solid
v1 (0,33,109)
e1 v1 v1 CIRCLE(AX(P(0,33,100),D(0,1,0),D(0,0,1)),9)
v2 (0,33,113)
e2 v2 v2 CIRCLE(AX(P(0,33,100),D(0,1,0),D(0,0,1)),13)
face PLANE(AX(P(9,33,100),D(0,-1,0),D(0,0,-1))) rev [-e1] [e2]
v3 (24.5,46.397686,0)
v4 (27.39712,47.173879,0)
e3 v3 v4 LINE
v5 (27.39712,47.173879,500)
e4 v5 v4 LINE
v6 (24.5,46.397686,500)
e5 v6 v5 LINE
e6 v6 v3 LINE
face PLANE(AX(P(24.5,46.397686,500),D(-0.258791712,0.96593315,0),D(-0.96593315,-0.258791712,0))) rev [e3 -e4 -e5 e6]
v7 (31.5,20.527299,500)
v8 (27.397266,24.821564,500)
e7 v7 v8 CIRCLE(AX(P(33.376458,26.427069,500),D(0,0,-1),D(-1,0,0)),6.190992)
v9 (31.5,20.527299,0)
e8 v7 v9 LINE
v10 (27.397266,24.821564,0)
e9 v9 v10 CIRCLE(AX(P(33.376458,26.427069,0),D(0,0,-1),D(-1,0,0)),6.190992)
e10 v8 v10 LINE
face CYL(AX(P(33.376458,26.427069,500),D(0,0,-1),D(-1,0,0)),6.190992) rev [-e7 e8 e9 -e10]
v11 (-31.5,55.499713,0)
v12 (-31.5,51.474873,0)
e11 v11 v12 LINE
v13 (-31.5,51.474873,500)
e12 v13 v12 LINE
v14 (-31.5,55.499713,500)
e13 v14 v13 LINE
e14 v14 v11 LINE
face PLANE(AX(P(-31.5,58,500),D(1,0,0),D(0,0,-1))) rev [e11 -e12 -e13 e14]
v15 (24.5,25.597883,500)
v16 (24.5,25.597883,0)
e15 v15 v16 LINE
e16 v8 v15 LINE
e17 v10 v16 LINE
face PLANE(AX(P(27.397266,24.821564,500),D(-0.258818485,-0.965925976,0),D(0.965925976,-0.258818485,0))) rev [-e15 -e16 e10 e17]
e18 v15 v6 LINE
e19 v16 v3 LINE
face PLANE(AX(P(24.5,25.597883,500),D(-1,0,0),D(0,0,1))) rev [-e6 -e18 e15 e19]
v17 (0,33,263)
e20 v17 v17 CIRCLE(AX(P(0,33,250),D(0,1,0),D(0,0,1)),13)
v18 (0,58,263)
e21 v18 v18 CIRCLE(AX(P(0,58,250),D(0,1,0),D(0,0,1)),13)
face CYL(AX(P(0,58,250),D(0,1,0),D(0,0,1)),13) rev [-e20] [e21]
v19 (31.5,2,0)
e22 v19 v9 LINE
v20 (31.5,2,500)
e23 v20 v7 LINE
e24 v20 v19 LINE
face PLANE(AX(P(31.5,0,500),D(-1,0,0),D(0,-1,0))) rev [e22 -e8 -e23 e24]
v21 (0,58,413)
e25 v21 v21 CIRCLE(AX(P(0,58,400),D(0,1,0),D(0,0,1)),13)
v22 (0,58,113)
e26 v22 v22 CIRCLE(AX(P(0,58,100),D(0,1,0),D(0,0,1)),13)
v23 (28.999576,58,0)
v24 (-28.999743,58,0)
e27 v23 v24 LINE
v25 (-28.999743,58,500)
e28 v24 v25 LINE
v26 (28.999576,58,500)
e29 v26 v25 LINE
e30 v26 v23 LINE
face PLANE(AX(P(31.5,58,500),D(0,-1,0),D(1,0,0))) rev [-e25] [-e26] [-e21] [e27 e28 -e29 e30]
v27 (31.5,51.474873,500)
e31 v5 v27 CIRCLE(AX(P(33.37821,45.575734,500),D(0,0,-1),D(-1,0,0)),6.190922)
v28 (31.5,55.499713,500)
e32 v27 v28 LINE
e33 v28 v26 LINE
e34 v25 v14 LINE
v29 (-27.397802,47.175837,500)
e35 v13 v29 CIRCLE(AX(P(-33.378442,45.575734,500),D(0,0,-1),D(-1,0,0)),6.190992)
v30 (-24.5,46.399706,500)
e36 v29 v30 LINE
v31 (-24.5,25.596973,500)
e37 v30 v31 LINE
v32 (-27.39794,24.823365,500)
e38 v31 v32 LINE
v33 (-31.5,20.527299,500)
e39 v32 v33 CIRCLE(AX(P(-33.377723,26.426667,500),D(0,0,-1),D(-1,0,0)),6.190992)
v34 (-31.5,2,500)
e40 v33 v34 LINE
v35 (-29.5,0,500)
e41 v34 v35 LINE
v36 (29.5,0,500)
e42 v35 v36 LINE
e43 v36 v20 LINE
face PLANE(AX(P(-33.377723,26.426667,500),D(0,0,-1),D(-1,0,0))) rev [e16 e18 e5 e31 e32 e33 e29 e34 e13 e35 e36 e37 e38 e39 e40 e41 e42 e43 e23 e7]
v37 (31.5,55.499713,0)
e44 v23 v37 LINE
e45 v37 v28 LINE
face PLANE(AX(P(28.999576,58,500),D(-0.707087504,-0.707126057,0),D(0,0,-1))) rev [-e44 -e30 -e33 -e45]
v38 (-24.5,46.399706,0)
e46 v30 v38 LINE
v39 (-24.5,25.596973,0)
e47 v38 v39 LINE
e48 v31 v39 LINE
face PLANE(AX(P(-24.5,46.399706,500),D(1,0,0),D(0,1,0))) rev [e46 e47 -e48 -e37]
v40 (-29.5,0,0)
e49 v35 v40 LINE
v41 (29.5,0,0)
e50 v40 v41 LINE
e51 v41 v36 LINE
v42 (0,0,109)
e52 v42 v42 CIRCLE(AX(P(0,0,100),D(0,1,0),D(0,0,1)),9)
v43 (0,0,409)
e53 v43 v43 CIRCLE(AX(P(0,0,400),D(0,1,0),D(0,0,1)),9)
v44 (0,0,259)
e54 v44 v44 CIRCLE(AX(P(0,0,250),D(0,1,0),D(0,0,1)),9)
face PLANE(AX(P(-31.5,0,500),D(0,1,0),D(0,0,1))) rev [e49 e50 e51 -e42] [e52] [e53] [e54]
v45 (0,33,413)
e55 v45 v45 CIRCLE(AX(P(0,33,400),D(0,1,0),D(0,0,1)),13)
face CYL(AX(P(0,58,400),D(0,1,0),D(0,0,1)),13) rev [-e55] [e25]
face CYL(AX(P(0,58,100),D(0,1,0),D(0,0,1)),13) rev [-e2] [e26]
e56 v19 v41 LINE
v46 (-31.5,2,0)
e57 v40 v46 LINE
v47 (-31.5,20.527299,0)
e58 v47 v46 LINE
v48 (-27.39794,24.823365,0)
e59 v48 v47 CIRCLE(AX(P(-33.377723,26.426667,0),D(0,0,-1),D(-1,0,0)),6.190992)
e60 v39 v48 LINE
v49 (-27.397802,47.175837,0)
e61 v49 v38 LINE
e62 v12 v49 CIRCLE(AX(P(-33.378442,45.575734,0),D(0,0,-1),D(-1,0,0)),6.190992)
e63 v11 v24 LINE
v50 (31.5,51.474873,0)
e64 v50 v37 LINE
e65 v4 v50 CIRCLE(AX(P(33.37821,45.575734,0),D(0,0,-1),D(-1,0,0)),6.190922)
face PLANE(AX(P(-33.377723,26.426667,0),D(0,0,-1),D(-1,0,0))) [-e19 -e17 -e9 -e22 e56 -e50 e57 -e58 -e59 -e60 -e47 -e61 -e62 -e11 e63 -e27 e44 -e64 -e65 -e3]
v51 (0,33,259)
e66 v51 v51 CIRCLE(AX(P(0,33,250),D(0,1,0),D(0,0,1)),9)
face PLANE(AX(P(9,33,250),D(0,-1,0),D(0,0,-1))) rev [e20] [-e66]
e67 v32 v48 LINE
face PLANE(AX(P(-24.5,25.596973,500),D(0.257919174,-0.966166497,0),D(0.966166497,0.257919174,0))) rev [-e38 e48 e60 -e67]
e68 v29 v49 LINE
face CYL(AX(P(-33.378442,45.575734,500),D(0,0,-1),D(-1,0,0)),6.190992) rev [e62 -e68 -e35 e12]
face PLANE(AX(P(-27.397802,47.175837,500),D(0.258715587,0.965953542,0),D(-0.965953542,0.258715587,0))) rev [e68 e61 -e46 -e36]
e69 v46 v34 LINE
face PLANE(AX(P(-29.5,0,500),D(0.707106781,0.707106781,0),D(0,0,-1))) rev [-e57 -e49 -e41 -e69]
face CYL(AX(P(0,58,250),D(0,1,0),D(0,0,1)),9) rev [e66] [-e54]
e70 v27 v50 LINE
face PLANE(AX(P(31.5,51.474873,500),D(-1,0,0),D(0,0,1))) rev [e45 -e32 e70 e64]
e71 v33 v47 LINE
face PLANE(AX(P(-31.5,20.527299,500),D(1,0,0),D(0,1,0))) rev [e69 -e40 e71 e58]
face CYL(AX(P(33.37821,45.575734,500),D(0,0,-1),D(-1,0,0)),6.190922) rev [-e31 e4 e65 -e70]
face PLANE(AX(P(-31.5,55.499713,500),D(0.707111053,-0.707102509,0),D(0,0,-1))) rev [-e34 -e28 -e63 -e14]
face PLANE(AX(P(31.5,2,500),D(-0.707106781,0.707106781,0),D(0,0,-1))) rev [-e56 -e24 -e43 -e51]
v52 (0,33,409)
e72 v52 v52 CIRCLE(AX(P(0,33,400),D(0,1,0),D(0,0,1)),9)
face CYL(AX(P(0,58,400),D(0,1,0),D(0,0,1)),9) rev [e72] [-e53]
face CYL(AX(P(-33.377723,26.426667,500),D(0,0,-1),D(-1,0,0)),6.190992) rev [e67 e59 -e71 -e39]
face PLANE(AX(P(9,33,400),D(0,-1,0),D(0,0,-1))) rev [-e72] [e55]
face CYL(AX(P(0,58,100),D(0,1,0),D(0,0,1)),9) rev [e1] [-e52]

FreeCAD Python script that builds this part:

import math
import FreeCAD as App
import Part
import Sketcher
from FreeCAD import Vector


def edges_at(feature, points):
    """Names of the edges that pass closest to the given points."""
    edges = feature.Shape.Edges
    near = lambda p: min(range(len(edges)), key=lambda i: edges[i].distToShape(Part.Vertex(*p))[0])
    return sorted({f"Edge{near(p) + 1}" for p in points})

doc = App.newDocument("Part")
body = doc.addObject("PartDesign::Body", "Body")

# Sketch on XY plane
sketch1 = body.newObject("Sketcher::SketchObject", "Sketch")
sketch1.AttachmentSupport = (doc.getObject("XY_Plane"), [""])
sketch1.MapMode = "FlatFace"
sketch1.addGeometry([
    Part.LineSegment(Vector(-31.5, 20.5, 0), Vector(-31.5, 0, 0)),  # 0
    Part.LineSegment(Vector(-31.5, 0, 0), Vector(31.5, 0, 0)),  # 1
    Part.LineSegment(Vector(31.5, 0, 0), Vector(31.5, 20.5, 0)),  # 2
    Part.ArcOfCircle(Part.Circle(Vector(33.4, 26.4, 0), Vector(0, 0, 1), 6.2), math.radians(-165), math.radians(-108)),  # 3
    Part.LineSegment(Vector(27.4, 24.8, 0), Vector(24.5, 25.6, 0)),  # 4
    Part.LineSegment(Vector(24.5, 25.6, 0), Vector(24.5, 46.4, 0)),  # 5
    Part.LineSegment(Vector(24.5, 46.4, 0), Vector(27.4, 47.2, 0)),  # 6
    Part.ArcOfCircle(Part.Circle(Vector(33.4, 45.6, 0), Vector(0, 0, 1), 6.2), math.radians(108), math.radians(165)),  # 7
    Part.LineSegment(Vector(31.5, 51.5, 0), Vector(31.5, 58, 0)),  # 8
    Part.LineSegment(Vector(31.5, 58, 0), Vector(-31.5, 58, 0)),  # 9
    Part.LineSegment(Vector(-31.5, 58, 0), Vector(-31.5, 51.5, 0)),  # 10
    Part.ArcOfCircle(Part.Circle(Vector(-33.4, 45.6, 0), Vector(0, 0, 1), 6.2), math.radians(15), math.radians(72)),  # 11
    Part.LineSegment(Vector(-27.4, 47.2, 0), Vector(-24.5, 46.4, 0)),  # 12
    Part.LineSegment(Vector(-24.5, 46.4, 0), Vector(-24.5, 25.6, 0)),  # 13
    Part.LineSegment(Vector(-24.5, 25.6, 0), Vector(-27.4, 24.8, 0)),  # 14
    Part.ArcOfCircle(Part.Circle(Vector(-33.4, 26.4, 0), Vector(0, 0, 1), 6.2), math.radians(-72), math.radians(-15)),  # 15
], False)
sketch1.addConstraint([
    Sketcher.Constraint("Coincident", 0, 2, 1, 1),
    Sketcher.Constraint("Coincident", 1, 2, 2, 1),
    Sketcher.Constraint("Coincident", 2, 2, 3, 2),
    Sketcher.Constraint("Coincident", 3, 1, 4, 1),
    Sketcher.Constraint("Coincident", 4, 2, 5, 1),
    Sketcher.Constraint("Coincident", 5, 2, 6, 1),
    Sketcher.Constraint("Coincident", 6, 2, 7, 2),
    Sketcher.Constraint("Coincident", 7, 1, 8, 1),
    Sketcher.Constraint("Coincident", 8, 2, 9, 1),
    Sketcher.Constraint("Coincident", 9, 2, 10, 1),
    Sketcher.Constraint("Coincident", 10, 2, 11, 2),
    Sketcher.Constraint("Coincident", 11, 1, 12, 1),
    Sketcher.Constraint("Coincident", 12, 2, 13, 1),
    Sketcher.Constraint("Coincident", 13, 2, 14, 1),
    Sketcher.Constraint("Coincident", 14, 2, 15, 2),
    Sketcher.Constraint("Coincident", 15, 1, 0, 1),
    Sketcher.Constraint("Vertical", 0),
    Sketcher.Constraint("Horizontal", 1),
    Sketcher.Constraint("Vertical", 2),
    Sketcher.Constraint("Vertical", 5),
    Sketcher.Constraint("Vertical", 8),
    Sketcher.Constraint("Horizontal", 9),
    Sketcher.Constraint("Vertical", 10),
    Sketcher.Constraint("Vertical", 13),
    Sketcher.Constraint("Equal", 3, 11),
    Sketcher.Constraint("Equal", 11, 15),
    Sketcher.Constraint("Symmetric", 0, 2, 1, 2, -1, 1),
    Sketcher.Constraint("Symmetric", 7, 1, 10, 2, -2),
    Sketcher.Constraint("Horizontal", 7, 3, 11, 3),
    Sketcher.Constraint("Horizontal", 2, 2, 15, 1),
    Sketcher.Constraint("Vertical", 2, 2, 7, 1),
    Sketcher.Constraint("DistanceX", 1, 1, 1, 2, 63.0),
    Sketcher.Constraint("DistanceY", -1, 1, 8, 2, 58.0),
    Sketcher.Constraint("DistanceX", 4, 2, 2, 2, 7.0),
    Sketcher.Constraint("DistanceX", 10, 2, 12, 2, 7.0),
    Sketcher.Constraint("Radius", 3, 6.190992),
    Sketcher.Constraint("Radius", 7, 6.190922),
    Sketcher.Constraint("DistanceY", 0, 2, 0, 1, 20.527299),
    Sketcher.Constraint("DistanceX", 11, 3, 3, 3, 66.7549),
    Sketcher.Constraint("DistanceY", 14, 2, 15, 3, 1.603302),
    Sketcher.Constraint("Distance", 4, 2.99947),
    Sketcher.Constraint("Distance", 12, 2.999939),
    Sketcher.Constraint("Distance", 14, 2.99942),
    Sketcher.Constraint("DistanceY", 5, 1, 5, 2, 20.799803),
    Sketcher.Constraint("DistanceY", 8, 1, 8, 2, 6.525127),
    Sketcher.Constraint("DistanceY", 13, 2, 13, 1, 20.802733),
    Sketcher.Constraint("DistanceX", -1, 1, 3, 3, 33.376458),
    Sketcher.Constraint("DistanceX", -1, 1, 6, 2, 27.39712),
    Sketcher.Constraint("DistanceX", 14, 2, -1, 1, 27.39794),
    Sketcher.Constraint("DistanceX", 3, 1, 3, 3, 5.979192),
])
pad1 = body.newObject("PartDesign::Pad", "Pad")
pad1.Profile = sketch1
pad1.Length = 500

# Sketch on XZ plane
sketch2 = body.newObject("Sketcher::SketchObject", "Sketch001")
sketch2.AttachmentSupport = (doc.getObject("XZ_Plane"), [""])
sketch2.MapMode = "FlatFace"
sketch2.AttachmentOffset = App.Placement(Vector(0, 0, -58), App.Rotation())
sketch2.addGeometry([
    Part.Circle(Vector(0, 100, 0), Vector(0, 0, 1), 9),  # 0
    Part.Circle(Vector(0, 250, 0), Vector(0, 0, 1), 9),  # 1
    Part.Circle(Vector(0, 400, 0), Vector(0, 0, 1), 9),  # 2
    Part.Circle(Vector(0, 550, 0), Vector(0, 0, 1), 9),  # 3
    Part.Circle(Vector(0, 700, 0), Vector(0, 0, 1), 9),  # 4
    Part.Circle(Vector(0, 850, 0), Vector(0, 0, 1), 9),  # 5
    Part.Circle(Vector(0, 1000, 0), Vector(0, 0, 1), 9),  # 6
    Part.Circle(Vector(0, 1150, 0), Vector(0, 0, 1), 9),  # 7
    Part.Circle(Vector(0, 1300, 0), Vector(0, 0, 1), 9),  # 8
    Part.Circle(Vector(0, 1450, 0), Vector(0, 0, 1), 9),  # 9
    Part.Circle(Vector(0, 1600, 0), Vector(0, 0, 1), 9),  # 10
    Part.Circle(Vector(0, 1750, 0), Vector(0, 0, 1), 9),  # 11
    Part.Circle(Vector(0, 1900, 0), Vector(0, 0, 1), 9),  # 12
    Part.Circle(Vector(0, 2050, 0), Vector(0, 0, 1), 9),  # 13
    Part.Circle(Vector(0, 2200, 0), Vector(0, 0, 1), 9),  # 14
    Part.Circle(Vector(0, 2350, 0), Vector(0, 0, 1), 9),  # 15
], False)
sketch2.addConstraint([
    Sketcher.Constraint("Equal", 0, 1),
    Sketcher.Constraint("Equal", 1, 2),
    Sketcher.Constraint("Equal", 2, 3),
    Sketcher.Constraint("Equal", 3, 4),
    Sketcher.Constraint("Equal", 4, 5),
    Sketcher.Constraint("Equal", 5, 6),
    Sketcher.Constraint("Equal", 6, 7),
    Sketcher.Constraint("Equal", 7, 8),
    Sketcher.Constraint("Equal", 8, 9),
    Sketcher.Constraint("Equal", 9, 10),
    Sketcher.Constraint("Equal", 10, 11),
    Sketcher.Constraint("Equal", 11, 12),
    Sketcher.Constraint("Equal", 12, 13),
    Sketcher.Constraint("Equal", 13, 14),
    Sketcher.Constraint("Equal", 14, 15),
    Sketcher.Constraint("PointOnObject", 0, 3, -2),
    Sketcher.Constraint("PointOnObject", 1, 3, -2),
    Sketcher.Constraint("PointOnObject", 2, 3, -2),
    Sketcher.Constraint("PointOnObject", 3, 3, -2),
    Sketcher.Constraint("PointOnObject", 4, 3, -2),
    Sketcher.Constraint("PointOnObject", 5, 3, -2),
    Sketcher.Constraint("PointOnObject", 6, 3, -2),
    Sketcher.Constraint("PointOnObject", 7, 3, -2),
    Sketcher.Constraint("PointOnObject", 8, 3, -2),
    Sketcher.Constraint("PointOnObject", 9, 3, -2),
    Sketcher.Constraint("PointOnObject", 10, 3, -2),
    Sketcher.Constraint("PointOnObject", 11, 3, -2),
    Sketcher.Constraint("PointOnObject", 12, 3, -2),
    Sketcher.Constraint("PointOnObject", 13, 3, -2),
    Sketcher.Constraint("PointOnObject", 14, 3, -2),
    Sketcher.Constraint("PointOnObject", 15, 3, -2),
    Sketcher.Constraint("Diameter", 0, 18.0),
    Sketcher.Constraint("DistanceY", -1, 1, 0, 3, 100.0),
    Sketcher.Constraint("DistanceY", -1, 1, 1, 3, 250.0),
    Sketcher.Constraint("DistanceY", -1, 1, 2, 3, 400.0),
    Sketcher.Constraint("DistanceY", -1, 1, 3, 3, 550.0),
    Sketcher.Constraint("DistanceY", -1, 1, 4, 3, 700.0),
    Sketcher.Constraint("DistanceY", -1, 1, 5, 3, 850.0),
    Sketcher.Constraint("DistanceY", -1, 1, 6, 3, 1000.0),
    Sketcher.Constraint("DistanceY", -1, 1, 7, 3, 1150.0),
    Sketcher.Constraint("DistanceY", -1, 1, 8, 3, 1300.0),
    Sketcher.Constraint("DistanceY", -1, 1, 9, 3, 1450.0),
    Sketcher.Constraint("DistanceY", -1, 1, 10, 3, 1600.0),
    Sketcher.Constraint("DistanceY", -1, 1, 11, 3, 1750.0),
    Sketcher.Constraint("DistanceY", -1, 1, 12, 3, 1900.0),
    Sketcher.Constraint("DistanceY", -1, 1, 13, 3, 2050.0),
    Sketcher.Constraint("DistanceY", -1, 1, 14, 3, 2200.0),
    Sketcher.Constraint("DistanceY", -1, 1, 15, 3, 2350.0),
])
doc.recompute()
hole = body.newObject("PartDesign::Hole", "Hole")
hole.Profile = sketch2
hole.ThreadType = "None"
hole.Diameter = 18
hole.DepthType = "Dimension"
hole.Depth = 58
hole.DrillPoint = "Flat"
hole.HoleCutType = "Counterbore"
hole.HoleCutDiameter = 26
hole.HoleCutDepth = 25
hole.Reversed = True
doc.recompute()

chamfer = body.newObject("PartDesign::Chamfer", "Chamfer")
chamfer.Base = (hole, edges_at(hole, [(-31.5, 58, 250)]))
chamfer.ChamferType = "Two distances"
chamfer.Size = 2.500257
chamfer.Size2 = 2.500287
doc.recompute()

chamfer2 = body.newObject("PartDesign::Chamfer", "Chamfer001")
chamfer2.Base = (chamfer, edges_at(chamfer, [(31.5, 58, 250)]))
chamfer2.ChamferType = "Two distances"
chamfer2.Size = 2.500287
chamfer2.Size2 = 2.500424
doc.recompute()

chamfer3 = body.newObject("PartDesign::Chamfer", "Chamfer002")
chamfer3.Base = (chamfer2, edges_at(chamfer2, [(31.5, 0, 250), (-31.5, 0, 250)]))
chamfer3.Size = 2

doc.recompute()
